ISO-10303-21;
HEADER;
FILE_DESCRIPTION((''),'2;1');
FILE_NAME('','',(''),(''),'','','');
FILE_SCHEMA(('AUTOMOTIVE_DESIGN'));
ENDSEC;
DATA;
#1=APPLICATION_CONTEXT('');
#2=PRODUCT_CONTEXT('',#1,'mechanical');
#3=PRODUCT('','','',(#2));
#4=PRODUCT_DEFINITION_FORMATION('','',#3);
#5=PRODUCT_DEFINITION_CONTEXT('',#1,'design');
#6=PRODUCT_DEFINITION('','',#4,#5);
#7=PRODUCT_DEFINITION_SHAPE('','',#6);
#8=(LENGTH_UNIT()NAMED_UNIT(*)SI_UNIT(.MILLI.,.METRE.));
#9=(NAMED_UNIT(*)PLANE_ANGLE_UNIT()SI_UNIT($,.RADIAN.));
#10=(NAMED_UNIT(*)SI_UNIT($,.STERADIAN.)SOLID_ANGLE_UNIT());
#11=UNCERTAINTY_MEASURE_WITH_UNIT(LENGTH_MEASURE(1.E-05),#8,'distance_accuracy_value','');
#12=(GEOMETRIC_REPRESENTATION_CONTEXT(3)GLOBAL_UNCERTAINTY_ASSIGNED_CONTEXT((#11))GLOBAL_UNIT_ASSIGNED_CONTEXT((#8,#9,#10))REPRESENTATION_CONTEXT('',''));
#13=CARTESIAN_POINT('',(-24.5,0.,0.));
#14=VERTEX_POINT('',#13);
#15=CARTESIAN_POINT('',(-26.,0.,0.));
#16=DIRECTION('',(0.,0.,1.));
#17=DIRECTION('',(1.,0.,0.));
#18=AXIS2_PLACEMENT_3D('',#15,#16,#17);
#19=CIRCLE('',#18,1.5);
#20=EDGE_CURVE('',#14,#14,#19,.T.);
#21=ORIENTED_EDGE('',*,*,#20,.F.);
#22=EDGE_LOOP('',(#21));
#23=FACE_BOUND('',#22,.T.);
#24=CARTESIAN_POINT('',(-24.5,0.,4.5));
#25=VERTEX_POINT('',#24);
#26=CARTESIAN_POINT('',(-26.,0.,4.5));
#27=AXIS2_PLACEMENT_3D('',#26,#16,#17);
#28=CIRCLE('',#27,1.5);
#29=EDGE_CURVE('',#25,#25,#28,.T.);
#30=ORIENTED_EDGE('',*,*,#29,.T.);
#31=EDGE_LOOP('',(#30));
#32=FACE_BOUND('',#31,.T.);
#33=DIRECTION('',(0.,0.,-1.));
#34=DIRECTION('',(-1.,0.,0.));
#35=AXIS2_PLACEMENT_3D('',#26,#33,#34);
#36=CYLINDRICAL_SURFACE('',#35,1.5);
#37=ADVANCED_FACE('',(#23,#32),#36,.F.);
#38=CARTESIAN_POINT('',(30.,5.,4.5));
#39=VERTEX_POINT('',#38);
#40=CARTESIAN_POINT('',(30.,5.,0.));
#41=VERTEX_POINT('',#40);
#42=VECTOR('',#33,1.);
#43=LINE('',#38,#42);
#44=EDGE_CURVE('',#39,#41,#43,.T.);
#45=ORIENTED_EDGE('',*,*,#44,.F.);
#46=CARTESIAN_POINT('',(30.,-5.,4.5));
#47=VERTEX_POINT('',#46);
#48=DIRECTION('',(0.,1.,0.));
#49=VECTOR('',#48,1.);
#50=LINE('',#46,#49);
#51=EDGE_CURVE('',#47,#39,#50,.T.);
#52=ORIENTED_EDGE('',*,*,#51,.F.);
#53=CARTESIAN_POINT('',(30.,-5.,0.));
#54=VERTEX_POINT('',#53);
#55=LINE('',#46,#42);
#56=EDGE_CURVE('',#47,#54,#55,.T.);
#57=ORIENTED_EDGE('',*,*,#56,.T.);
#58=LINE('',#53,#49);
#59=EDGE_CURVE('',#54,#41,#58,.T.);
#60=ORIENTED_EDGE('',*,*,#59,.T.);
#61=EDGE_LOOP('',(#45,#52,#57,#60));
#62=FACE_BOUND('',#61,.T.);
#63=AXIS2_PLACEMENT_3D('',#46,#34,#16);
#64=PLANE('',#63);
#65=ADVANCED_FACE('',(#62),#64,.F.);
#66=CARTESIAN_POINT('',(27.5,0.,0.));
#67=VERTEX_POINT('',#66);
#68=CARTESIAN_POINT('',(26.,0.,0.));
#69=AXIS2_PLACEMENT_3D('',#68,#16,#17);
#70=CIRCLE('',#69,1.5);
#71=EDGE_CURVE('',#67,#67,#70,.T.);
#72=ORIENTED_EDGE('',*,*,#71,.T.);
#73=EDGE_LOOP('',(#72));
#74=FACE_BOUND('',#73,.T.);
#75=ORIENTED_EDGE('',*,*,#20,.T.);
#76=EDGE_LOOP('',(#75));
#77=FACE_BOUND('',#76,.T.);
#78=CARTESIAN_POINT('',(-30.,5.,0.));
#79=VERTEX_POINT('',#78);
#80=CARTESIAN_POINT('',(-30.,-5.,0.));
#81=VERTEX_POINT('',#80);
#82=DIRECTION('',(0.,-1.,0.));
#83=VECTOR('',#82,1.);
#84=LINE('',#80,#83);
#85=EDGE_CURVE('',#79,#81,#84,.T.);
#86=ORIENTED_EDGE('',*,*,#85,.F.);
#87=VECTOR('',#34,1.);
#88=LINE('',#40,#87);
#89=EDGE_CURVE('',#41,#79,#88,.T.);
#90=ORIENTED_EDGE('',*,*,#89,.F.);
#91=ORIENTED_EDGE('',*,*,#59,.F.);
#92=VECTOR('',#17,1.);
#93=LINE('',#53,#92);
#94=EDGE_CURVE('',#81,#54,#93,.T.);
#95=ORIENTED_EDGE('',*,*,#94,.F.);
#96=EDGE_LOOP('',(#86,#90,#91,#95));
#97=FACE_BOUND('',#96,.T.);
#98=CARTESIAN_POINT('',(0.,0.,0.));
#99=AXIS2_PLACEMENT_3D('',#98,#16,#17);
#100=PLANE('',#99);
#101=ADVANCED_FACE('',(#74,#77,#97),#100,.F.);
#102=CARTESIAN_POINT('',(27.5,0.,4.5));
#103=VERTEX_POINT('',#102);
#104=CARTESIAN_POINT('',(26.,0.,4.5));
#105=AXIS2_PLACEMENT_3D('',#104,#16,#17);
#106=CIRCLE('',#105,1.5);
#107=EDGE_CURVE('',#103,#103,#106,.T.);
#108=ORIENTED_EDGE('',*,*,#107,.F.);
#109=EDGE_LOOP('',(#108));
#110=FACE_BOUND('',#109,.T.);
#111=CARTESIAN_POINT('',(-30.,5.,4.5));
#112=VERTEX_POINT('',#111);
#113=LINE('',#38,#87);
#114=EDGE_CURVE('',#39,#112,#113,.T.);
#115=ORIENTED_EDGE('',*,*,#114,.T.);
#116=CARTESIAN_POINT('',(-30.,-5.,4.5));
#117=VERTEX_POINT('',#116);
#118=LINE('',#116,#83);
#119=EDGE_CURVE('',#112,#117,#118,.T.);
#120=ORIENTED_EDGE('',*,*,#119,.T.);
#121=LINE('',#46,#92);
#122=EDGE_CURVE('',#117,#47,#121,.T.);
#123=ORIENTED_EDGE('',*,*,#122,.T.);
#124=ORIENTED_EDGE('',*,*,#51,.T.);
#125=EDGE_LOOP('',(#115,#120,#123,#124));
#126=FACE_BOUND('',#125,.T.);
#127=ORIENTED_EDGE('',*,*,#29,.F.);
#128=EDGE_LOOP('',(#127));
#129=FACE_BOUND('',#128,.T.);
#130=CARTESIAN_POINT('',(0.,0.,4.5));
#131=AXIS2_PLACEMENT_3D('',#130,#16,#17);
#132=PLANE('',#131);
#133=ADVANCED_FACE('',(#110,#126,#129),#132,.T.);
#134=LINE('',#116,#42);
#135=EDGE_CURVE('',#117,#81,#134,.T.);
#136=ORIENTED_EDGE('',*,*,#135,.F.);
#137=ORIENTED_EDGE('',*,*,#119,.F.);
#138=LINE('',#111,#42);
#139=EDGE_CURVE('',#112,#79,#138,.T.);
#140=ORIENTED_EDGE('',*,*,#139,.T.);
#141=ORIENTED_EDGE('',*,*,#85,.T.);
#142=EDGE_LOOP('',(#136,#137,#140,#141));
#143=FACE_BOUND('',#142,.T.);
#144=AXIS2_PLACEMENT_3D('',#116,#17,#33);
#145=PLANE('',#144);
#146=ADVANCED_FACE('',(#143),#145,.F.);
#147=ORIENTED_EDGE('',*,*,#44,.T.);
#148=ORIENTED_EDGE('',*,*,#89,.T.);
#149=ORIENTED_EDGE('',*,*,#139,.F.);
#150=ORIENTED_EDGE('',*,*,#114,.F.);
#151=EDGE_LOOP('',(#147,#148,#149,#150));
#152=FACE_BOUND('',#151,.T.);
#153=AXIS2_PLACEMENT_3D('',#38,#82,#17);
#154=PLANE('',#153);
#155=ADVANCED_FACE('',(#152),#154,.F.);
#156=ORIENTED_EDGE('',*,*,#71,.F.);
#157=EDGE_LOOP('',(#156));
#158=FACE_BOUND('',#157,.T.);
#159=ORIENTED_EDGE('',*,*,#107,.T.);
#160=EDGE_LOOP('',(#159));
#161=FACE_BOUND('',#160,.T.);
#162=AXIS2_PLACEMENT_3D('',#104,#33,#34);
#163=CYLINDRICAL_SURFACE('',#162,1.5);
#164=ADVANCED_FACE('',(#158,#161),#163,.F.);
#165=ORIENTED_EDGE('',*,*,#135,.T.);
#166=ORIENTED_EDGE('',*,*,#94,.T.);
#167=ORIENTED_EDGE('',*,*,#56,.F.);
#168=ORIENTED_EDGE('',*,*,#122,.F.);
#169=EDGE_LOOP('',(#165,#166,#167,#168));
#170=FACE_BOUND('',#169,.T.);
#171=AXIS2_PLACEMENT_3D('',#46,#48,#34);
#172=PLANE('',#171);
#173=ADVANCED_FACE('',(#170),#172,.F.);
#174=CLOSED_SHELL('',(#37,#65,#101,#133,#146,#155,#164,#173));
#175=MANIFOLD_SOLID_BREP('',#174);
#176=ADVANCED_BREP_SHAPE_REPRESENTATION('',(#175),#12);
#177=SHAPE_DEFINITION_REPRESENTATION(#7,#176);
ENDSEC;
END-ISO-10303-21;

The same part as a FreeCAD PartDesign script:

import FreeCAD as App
import Part
import Sketcher
Q = App.Units.Quantity

doc = App.newDocument("Part")
body = doc.addObject("PartDesign::Body", "Body")

sketch1 = body.newObject("Sketcher::SketchObject", "Sketch")
sketch1.AttachmentSupport = (doc.getObject("XY_Plane"), [""])
sketch1.MapMode = "FlatFace"
sketch1.addGeometry(Part.LineSegment(App.Vector(-30, 5, 0), App.Vector(-30, -5, 0)), False)
sketch1.addGeometry(Part.LineSegment(App.Vector(-30, -5, 0), App.Vector(30, -5, 0)), False)
sketch1.addGeometry(Part.LineSegment(App.Vector(30, -5, 0), App.Vector(30, 5, 0)), False)
sketch1.addGeometry(Part.LineSegment(App.Vector(30, 5, 0), App.Vector(-30, 5, 0)), False)
sketch1.addGeometry(Part.Circle(App.Vector(-26, 0, 0), App.Vector(0, 0, 1), 1.5), False)
sketch1.addGeometry(Part.Circle(App.Vector(26, 0, 0), App.Vector(0, 0, 1), 1.5), False)
sketch1.addConstraint(Sketcher.Constraint("Coincident", 0, 2, 1, 1))
sketch1.addConstraint(Sketcher.Constraint("Coincident", 1, 2, 2, 1))
sketch1.addConstraint(Sketcher.Constraint("Coincident", 2, 2, 3, 1))
sketch1.addConstraint(Sketcher.Constraint("Coincident", 3, 2, 0, 1))
sketch1.addConstraint(Sketcher.Constraint("Vertical", 0))
sketch1.addConstraint(Sketcher.Constraint("Horizontal", 1))
sketch1.addConstraint(Sketcher.Constraint("Vertical", 2))
sketch1.addConstraint(Sketcher.Constraint("Horizontal", 3))
sketch1.addConstraint(Sketcher.Constraint("Equal", 4, 5))
sketch1.addConstraint(Sketcher.Constraint("Symmetric", 4, 3, 5, 3, -1, 1))
sketch1.addConstraint(Sketcher.Constraint("Symmetric", 0, 2, 2, 2, -1, 1))
sketch1.addConstraint(Sketcher.Constraint("PointOnObject", 4, 3, -1))
sketch1.addConstraint(Sketcher.Constraint("Diameter", 4, Q("3 mm")))
sketch1.addConstraint(Sketcher.Constraint("DistanceX", 1, 1, 1, 2, Q("60 mm")))
sketch1.addConstraint(Sketcher.Constraint("DistanceY", 0, 2, 0, 1, Q("10 mm")))
sketch1.addConstraint(Sketcher.Constraint("DistanceX", 4, 3, -1, 1, Q("26 mm")))
pad1 = body.newObject("PartDesign::Pad", "Pad")
pad1.Profile = sketch1
pad1.Length = 4.5

doc.recompute()
